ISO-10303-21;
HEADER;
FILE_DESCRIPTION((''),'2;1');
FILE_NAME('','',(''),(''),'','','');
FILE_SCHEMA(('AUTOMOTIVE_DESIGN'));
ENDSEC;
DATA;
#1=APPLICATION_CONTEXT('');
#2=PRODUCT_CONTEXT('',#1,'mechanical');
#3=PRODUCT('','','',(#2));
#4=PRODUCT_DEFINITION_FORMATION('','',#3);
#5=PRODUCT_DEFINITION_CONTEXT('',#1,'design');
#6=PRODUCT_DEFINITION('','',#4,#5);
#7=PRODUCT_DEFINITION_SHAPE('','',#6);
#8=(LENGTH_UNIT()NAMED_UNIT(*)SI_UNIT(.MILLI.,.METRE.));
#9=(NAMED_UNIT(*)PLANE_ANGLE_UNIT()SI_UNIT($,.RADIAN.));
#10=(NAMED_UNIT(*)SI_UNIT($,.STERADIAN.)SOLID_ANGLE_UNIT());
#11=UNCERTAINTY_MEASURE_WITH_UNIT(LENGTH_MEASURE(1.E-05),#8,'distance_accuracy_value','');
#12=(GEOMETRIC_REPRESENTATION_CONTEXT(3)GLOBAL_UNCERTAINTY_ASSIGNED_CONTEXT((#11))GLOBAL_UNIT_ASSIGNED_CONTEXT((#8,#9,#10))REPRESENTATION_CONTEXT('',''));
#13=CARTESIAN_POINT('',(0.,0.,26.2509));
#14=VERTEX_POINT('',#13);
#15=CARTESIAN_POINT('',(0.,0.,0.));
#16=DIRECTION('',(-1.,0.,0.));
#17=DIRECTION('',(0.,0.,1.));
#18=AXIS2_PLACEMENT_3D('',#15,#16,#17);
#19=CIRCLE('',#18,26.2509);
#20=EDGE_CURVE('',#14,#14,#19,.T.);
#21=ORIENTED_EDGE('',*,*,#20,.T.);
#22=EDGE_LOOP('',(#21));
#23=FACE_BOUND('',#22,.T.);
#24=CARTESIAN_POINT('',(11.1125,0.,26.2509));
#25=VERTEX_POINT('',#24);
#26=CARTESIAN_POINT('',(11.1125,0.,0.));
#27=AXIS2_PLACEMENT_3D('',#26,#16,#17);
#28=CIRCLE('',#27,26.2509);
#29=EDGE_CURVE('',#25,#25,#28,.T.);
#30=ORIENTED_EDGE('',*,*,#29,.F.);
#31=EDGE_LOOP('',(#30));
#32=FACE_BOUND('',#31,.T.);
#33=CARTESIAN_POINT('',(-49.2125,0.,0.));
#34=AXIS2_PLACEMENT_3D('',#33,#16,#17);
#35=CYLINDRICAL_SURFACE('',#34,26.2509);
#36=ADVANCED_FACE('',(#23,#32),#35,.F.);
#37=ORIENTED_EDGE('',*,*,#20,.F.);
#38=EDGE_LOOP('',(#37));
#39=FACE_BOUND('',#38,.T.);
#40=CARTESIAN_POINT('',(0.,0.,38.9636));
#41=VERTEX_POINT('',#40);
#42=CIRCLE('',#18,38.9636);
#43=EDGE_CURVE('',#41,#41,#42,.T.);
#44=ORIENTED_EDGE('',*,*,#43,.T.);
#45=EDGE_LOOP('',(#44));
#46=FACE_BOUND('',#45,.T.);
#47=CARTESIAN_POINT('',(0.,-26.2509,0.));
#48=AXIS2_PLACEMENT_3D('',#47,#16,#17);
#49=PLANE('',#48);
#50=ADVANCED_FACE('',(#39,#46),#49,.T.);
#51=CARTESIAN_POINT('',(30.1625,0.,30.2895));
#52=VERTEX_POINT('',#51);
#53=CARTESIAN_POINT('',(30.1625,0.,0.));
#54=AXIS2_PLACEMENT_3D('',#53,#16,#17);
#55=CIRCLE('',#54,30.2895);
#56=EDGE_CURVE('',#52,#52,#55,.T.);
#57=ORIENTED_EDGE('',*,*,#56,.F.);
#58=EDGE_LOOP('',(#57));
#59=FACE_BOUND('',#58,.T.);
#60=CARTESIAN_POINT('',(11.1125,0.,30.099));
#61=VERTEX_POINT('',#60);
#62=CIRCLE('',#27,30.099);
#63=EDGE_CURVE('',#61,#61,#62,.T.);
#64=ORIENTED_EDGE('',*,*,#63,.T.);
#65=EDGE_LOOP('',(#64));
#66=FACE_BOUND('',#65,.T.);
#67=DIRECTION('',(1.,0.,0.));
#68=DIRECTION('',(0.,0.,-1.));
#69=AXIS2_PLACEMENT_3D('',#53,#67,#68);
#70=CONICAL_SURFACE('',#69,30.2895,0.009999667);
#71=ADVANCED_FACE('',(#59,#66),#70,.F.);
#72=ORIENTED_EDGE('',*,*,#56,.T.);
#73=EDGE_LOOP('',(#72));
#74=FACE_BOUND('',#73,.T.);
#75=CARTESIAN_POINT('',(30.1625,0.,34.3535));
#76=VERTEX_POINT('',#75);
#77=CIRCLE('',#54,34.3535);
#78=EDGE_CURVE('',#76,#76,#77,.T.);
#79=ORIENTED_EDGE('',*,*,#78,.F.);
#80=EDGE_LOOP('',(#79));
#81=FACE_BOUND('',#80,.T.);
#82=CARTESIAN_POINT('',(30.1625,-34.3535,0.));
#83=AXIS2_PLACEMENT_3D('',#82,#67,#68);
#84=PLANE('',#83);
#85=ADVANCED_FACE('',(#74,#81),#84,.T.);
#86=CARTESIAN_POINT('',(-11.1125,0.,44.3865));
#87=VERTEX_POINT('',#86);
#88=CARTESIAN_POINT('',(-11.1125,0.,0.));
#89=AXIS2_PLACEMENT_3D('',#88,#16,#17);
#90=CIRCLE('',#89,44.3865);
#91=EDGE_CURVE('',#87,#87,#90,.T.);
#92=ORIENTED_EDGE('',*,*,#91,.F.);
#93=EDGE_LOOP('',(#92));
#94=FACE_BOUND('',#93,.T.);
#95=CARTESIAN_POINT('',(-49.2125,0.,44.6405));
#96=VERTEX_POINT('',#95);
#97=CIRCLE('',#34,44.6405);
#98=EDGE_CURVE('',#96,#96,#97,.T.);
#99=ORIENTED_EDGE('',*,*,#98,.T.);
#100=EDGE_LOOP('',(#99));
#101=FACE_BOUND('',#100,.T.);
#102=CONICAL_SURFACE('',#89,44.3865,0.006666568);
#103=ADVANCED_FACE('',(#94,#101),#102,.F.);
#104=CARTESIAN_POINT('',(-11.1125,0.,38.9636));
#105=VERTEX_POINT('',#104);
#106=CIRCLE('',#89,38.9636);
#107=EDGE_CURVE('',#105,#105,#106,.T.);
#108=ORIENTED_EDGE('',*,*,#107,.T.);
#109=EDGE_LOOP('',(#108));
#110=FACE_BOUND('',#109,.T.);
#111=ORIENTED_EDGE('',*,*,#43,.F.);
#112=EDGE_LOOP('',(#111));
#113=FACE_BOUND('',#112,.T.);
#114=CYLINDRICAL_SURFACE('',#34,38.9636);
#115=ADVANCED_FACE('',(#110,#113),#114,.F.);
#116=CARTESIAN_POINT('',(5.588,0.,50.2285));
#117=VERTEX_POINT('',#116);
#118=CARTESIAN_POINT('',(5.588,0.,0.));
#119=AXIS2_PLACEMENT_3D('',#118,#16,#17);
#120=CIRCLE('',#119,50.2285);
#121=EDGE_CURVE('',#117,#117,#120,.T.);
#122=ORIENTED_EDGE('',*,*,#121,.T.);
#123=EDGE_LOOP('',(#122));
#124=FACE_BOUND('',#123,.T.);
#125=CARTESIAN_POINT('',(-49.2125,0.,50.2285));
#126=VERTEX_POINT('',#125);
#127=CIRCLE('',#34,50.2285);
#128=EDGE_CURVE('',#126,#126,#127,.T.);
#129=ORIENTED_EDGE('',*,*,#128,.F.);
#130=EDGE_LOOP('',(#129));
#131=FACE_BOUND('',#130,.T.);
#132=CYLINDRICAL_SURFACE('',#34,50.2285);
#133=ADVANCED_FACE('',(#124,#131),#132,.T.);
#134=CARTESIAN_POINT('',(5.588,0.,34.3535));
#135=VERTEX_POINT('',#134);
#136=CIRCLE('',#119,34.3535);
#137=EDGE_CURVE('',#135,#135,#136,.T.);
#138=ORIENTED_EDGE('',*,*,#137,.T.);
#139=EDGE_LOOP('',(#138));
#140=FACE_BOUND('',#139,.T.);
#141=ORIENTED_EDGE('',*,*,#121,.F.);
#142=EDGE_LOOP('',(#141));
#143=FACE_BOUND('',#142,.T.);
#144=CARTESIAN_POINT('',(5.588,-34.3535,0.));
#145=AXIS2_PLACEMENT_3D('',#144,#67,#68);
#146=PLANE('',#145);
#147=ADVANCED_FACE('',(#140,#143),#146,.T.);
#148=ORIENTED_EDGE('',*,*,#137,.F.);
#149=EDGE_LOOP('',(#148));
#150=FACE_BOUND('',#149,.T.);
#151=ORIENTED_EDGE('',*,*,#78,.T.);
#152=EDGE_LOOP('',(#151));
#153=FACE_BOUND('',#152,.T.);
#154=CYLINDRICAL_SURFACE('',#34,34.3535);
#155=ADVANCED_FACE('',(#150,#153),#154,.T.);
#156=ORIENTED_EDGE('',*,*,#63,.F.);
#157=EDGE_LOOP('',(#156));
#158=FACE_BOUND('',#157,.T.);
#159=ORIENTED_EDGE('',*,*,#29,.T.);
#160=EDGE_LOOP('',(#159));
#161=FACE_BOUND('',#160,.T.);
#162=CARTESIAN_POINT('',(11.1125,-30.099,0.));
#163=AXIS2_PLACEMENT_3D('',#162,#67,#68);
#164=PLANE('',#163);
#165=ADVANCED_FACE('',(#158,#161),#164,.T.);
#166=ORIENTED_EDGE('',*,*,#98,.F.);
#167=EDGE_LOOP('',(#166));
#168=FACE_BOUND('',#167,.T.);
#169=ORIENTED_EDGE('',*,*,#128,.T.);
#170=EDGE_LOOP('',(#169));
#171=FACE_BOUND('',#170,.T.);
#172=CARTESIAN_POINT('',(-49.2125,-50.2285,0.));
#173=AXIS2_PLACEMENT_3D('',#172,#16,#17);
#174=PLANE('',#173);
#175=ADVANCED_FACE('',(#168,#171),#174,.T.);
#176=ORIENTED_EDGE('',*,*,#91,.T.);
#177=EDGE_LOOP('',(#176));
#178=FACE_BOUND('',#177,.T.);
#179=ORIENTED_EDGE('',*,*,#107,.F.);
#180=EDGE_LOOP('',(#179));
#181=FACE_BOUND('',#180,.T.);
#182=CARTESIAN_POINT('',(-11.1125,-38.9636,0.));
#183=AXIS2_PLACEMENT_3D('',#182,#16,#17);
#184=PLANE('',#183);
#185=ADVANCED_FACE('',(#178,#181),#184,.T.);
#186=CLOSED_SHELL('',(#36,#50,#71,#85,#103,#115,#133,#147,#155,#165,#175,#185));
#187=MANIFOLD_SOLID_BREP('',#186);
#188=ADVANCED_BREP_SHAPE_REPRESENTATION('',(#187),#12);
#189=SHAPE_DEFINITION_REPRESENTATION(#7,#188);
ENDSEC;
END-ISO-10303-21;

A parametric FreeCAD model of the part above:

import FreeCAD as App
import Part
import Sketcher
Q = App.Units.Quantity

doc = App.newDocument("Part")
body = doc.addObject("PartDesign::Body", "Body")

# Sketch on XY plane
sketch1 = body.newObject("Sketcher::SketchObject", "Sketch")
sketch1.AttachmentSupport = (doc.getObject("XY_Plane"), [""])
sketch1.MapMode = "FlatFace"
sketch1.addGeometry([
    Part.LineSegment(App.Vector(-49.2125, -50.2285, 0), App.Vector(5.588, -50.2285, 0)),  # 0
    Part.LineSegment(App.Vector(5.588, -50.2285, 0), App.Vector(5.588, -34.3535, 0)),  # 1
    Part.LineSegment(App.Vector(5.588, -34.3535, 0), App.Vector(30.1625, -34.3535, 0)),  # 2
    Part.LineSegment(App.Vector(30.1625, -34.3535, 0), App.Vector(30.1625, -30.2895, 0)),  # 3
    Part.LineSegment(App.Vector(30.1625, -30.2895, 0), App.Vector(11.1125, -30.099, 0)),  # 4
    Part.LineSegment(App.Vector(11.1125, -30.099, 0), App.Vector(11.1125, -26.2509, 0)),  # 5
    Part.LineSegment(App.Vector(11.1125, -26.2509, 0), App.Vector(0, -26.2509, 0)),  # 6
    Part.LineSegment(App.Vector(0, -26.2509, 0), App.Vector(0, -38.9636, 0)),  # 7
    Part.LineSegment(App.Vector(0, -38.9636, 0), App.Vector(-11.1125, -38.9636, 0)),  # 8
    Part.LineSegment(App.Vector(-11.1125, -38.9636, 0), App.Vector(-11.1125, -44.3865, 0)),  # 9
    Part.LineSegment(App.Vector(-11.1125, -44.3865, 0), App.Vector(-49.2125, -44.6405, 0)),  # 10
    Part.LineSegment(App.Vector(-49.2125, -44.6405, 0), App.Vector(-49.2125, -50.2285, 0)),  # 11
], False)
sketch1.addConstraint([
    Sketcher.Constraint("Coincident", 0, 2, 1, 1),
    Sketcher.Constraint("Coincident", 1, 2, 2, 1),
    Sketcher.Constraint("Coincident", 2, 2, 3, 1),
    Sketcher.Constraint("Coincident", 3, 2, 4, 1),
    Sketcher.Constraint("Coincident", 4, 2, 5, 1),
    Sketcher.Constraint("Coincident", 5, 2, 6, 1),
    Sketcher.Constraint("Coincident", 6, 2, 7, 1),
    Sketcher.Constraint("Coincident", 7, 2, 8, 1),
    Sketcher.Constraint("Coincident", 8, 2, 9, 1),
    Sketcher.Constraint("Coincident", 9, 2, 10, 1),
    Sketcher.Constraint("Coincident", 10, 2, 11, 1),
    Sketcher.Constraint("Coincident", 11, 2, 0, 1),
    Sketcher.Constraint("Horizontal", 0),
    Sketcher.Constraint("Vertical", 1),
    Sketcher.Constraint("Horizontal", 2),
    Sketcher.Constraint("Vertical", 3),
    Sketcher.Constraint("Vertical", 5),
    Sketcher.Constraint("Horizontal", 6),
    Sketcher.Constraint("Vertical", 7),
    Sketcher.Constraint("Horizontal", 8),
    Sketcher.Constraint("Vertical", 9),
    Sketcher.Constraint("Vertical", 11),
    Sketcher.Constraint("PointOnObject", 6, 2, -2),
    Sketcher.Constraint("Equal", 6, 8),
    Sketcher.Constraint("DistanceY", 3, 1, 3, 2, Q("0.16 in")),
    Sketcher.Constraint("DistanceY", 11, 2, 11, 1, Q("0.22 in")),
    Sketcher.Constraint("DistanceX", 10, 2, 9, 2, Q("1.5 in")),
    Sketcher.Constraint("DistanceX", 6, 2, 6, 1, Q("0.4375 in")),
    Sketcher.Constraint("DistanceY", 1, 1, 1, 2, Q("0.625 in")),
    Sketcher.Constraint("DistanceX", -1, 1, 0, 2, Q("0.22 in")),
    Sketcher.Constraint("DistanceX", 4, 2, 3, 2, Q("0.75 in")),
    Sketcher.Constraint("DistanceY", 0, 2, 9, 2, Q("0.23 in")),
    Sketcher.Constraint("DistanceY", 5, 1, 5, 2, Q("0.1515 in")),
    Sketcher.Constraint("DistanceY", 7, 2, 7, 1, Q("0.5005 in")),
    Sketcher.Constraint("DistanceY", 9, 2, 9, 1, Q("0.2135 in")),
    Sketcher.Constraint("DistanceY", 4, 2, -1, 1, Q("1.185 in")),
])
revolution = body.newObject("PartDesign::Revolution", "Revolution")
revolution.Profile = sketch1
revolution.ReferenceAxis = (sketch1, ["H_Axis"])
revolution.Angle = 360

doc.recompute()
